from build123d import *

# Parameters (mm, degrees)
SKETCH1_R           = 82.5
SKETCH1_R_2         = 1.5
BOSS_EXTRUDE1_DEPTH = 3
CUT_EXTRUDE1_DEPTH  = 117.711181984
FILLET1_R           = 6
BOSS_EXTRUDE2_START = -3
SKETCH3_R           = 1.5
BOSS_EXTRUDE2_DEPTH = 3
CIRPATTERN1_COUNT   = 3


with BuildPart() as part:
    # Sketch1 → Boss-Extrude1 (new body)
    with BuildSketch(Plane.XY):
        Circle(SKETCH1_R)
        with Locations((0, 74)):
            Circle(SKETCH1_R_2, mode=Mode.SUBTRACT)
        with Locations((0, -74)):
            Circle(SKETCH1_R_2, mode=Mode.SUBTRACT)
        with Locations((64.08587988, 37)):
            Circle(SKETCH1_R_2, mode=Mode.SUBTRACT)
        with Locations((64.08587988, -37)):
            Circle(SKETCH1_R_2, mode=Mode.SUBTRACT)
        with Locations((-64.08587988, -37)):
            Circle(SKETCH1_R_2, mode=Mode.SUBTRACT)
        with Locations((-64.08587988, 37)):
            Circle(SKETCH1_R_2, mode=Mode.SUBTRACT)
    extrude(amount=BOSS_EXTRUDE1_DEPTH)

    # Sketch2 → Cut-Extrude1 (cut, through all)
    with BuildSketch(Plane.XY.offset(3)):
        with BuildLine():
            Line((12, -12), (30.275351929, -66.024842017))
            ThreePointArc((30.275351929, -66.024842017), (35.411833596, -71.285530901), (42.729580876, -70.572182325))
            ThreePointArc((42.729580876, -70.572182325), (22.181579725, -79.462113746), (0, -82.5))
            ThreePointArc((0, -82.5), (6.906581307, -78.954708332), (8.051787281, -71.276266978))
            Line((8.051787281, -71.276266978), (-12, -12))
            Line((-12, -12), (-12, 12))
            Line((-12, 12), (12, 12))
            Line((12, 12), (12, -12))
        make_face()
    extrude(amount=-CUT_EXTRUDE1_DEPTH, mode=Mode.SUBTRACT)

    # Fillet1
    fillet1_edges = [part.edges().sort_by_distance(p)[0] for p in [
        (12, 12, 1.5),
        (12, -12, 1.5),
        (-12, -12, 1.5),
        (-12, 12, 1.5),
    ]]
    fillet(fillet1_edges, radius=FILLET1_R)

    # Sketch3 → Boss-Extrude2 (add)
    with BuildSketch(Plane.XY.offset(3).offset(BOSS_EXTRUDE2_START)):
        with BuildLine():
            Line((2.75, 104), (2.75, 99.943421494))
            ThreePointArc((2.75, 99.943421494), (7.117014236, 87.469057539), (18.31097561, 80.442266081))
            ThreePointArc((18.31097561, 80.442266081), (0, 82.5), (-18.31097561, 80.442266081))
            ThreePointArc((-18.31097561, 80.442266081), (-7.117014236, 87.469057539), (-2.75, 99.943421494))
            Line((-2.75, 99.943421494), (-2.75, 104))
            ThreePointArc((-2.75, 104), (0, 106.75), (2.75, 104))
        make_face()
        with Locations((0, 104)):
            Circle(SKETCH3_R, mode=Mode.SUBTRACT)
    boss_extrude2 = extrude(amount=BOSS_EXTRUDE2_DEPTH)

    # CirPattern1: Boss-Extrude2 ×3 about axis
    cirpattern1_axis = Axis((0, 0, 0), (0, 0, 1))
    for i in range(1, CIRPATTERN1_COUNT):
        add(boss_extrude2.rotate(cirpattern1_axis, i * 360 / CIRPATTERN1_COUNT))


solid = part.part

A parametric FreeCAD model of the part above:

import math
import FreeCAD as App
import Part
import Sketcher


def edges_at(feature, points):
    """Names of the edges that pass closest to the given points."""
    edges = feature.Shape.Edges
    near = lambda p: min(range(len(edges)), key=lambda i: edges[i].distToShape(Part.Vertex(*p))[0])
    return sorted({f"Edge{near(p) + 1}" for p in points})

doc = App.newDocument("Part")
params = doc.addObject("Spreadsheet::Sheet", "Params")
for row, (alias, value) in enumerate([
    ("sketch1_diameter", "165 mm"),
    ("sketch1_diameter2", "3 mm"),
    ("pad1_length", "3 mm"),
    ("sketch2_radius", "8.5 mm"),
    ("sketch2_radius2", "82.5 mm"),
    ("sketch2_width", "24 mm"),
    ("fillet_radius", "6 mm"),
    ("sketch3_diameter", "3 mm"),
    ("sketch3_radius", "20 mm"),
    ("sketch3_radius2", "82.5 mm"),
    ("sketch3_radius3", "2.75 mm"),
    ("pad2_length", "3 mm"),
], start=1):
    params.set(f"A{row}", alias)
    params.set(f"B{row}", "=" + value)
    params.setAlias(f"B{row}", alias)

body = doc.addObject("PartDesign::Body", "Body")

# Sketch on XY plane
sketch1 = body.newObject("Sketcher::SketchObject", "Sketch")
sketch1.AttachmentSupport = (doc.getObject("XY_Plane"), [""])
sketch1.MapMode = "FlatFace"
sketch1.addGeometry([
    Part.Circle(App.Vector(0, 0, 0), App.Vector(0, 0, 1), 82.5),  # 0
    Part.Circle(App.Vector(-64.08588, -37, 0), App.Vector(0, 0, 1), 1.5),  # 1
    Part.Circle(App.Vector(0, -74, 0), App.Vector(0, 0, 1), 1.5),  # 2
    Part.Circle(App.Vector(64.08588, -37, 0), App.Vector(0, 0, 1), 1.5),  # 3
    Part.Circle(App.Vector(-64.08588, 37, 0), App.Vector(0, 0, 1), 1.5),  # 4
    Part.Circle(App.Vector(64.08588, 37, 0), App.Vector(0, 0, 1), 1.5),  # 5
    Part.Circle(App.Vector(0, 74, 0), App.Vector(0, 0, 1), 1.5),  # 6
], False)
sketch1.addConstraint([
    Sketcher.Constraint("Coincident", 0, 3, -1, 1),
    Sketcher.Constraint("Equal", 1, 2),
    Sketcher.Constraint("Equal", 2, 3),
    Sketcher.Constraint("Equal", 3, 4),
    Sketcher.Constraint("Equal", 4, 5),
    Sketcher.Constraint("Equal", 5, 6),
    Sketcher.Constraint("Symmetric", 3, 3, 4, 3, -1, 1),
    Sketcher.Constraint("Symmetric", 1, 3, 5, 3, -1, 1),
    Sketcher.Constraint("Symmetric", 2, 3, 6, 3, -1, 1),
    Sketcher.Constraint("Symmetric", 1, 3, 3, 3, -2),
    Sketcher.Constraint("PointOnObject", 2, 3, -2),
    Sketcher.Constraint("Diameter", 0, 165.0),
    Sketcher.Constraint("Diameter", 1, 3.0),
    Sketcher.Constraint("DistanceY", 1, 3, -1, 1, 37.0),
    Sketcher.Constraint("DistanceY", 2, 3, -1, 1, 74.0),
    Sketcher.Constraint("DistanceX", 1, 3, -1, 1, 64.08588),
])
sketch1.setExpression("Constraints[11]", "Params.sketch1_diameter")
sketch1.setExpression("Constraints[12]", "Params.sketch1_diameter2")
pad1 = body.newObject("PartDesign::Pad", "Pad")
pad1.Profile = sketch1
pad1.setExpression("Length", "Params.pad1_length")

# Sketch on XY plane
sketch2 = body.newObject("Sketcher::SketchObject", "Sketch001")
sketch2.AttachmentSupport = (doc.getObject("XY_Plane"), [""])
sketch2.MapMode = "FlatFace"
sketch2.AttachmentOffset = App.Placement(App.Vector(0, 0, 3), App.Rotation())
sketch2.addGeometry([
    Part.LineSegment(App.Vector(30.275352, -66.024842, 0), App.Vector(12, -12, 0)),  # 0
    Part.LineSegment(App.Vector(12, -12, 0), App.Vector(12, 12, 0)),  # 1
    Part.LineSegment(App.Vector(12, 12, 0), App.Vector(-12, 12, 0)),  # 2
    Part.LineSegment(App.Vector(-12, 12, 0), App.Vector(-12, -12, 0)),  # 3
    Part.LineSegment(App.Vector(-12, -12, 0), App.Vector(8.051787, -71.276267, 0)),  # 4
    Part.ArcOfCircle(Part.Circle(App.Vector(0, -74, 0), App.Vector(0, 0, 1), 8.5), math.radians(-90), math.radians(18.689487)),  # 5
    Part.ArcOfCircle(Part.Circle(App.Vector(0, 0, 0), App.Vector(0, 0, 1), 82.5), math.radians(-90), math.radians(-58.806209)),  # 6
    Part.ArcOfCircle(Part.Circle(App.Vector(38.327139, -63.301109, 0), App.Vector(0, 0, 1), 8.5), math.radians(-161.310513), math.radians(-58.806209)),  # 7
], False)
sketch2.addConstraint([
    Sketcher.Constraint("Coincident", 0, 2, 1, 1),
    Sketcher.Constraint("Coincident", 1, 2, 2, 1),
    Sketcher.Constraint("Coincident", 2, 2, 3, 1),
    Sketcher.Constraint("Coincident", 3, 2, 4, 1),
    Sketcher.Constraint("Tangent", 4, 2, 5, 2),
    Sketcher.Constraint("Tangent", 5, 1, 6, 1),
    Sketcher.Constraint("Tangent", 6, 2, 7, 2),
    Sketcher.Constraint("Tangent", 7, 1, 0, 1),
    Sketcher.Constraint("Vertical", 1),
    Sketcher.Constraint("Horizontal", 2),
    Sketcher.Constraint("Vertical", 3),
    Sketcher.Constraint("Coincident", 6, 3, -1, 1),
    Sketcher.Constraint("Equal", 5, 7),
    Sketcher.Constraint("Symmetric", 0, 2, 2, 2, -1, 1),
    Sketcher.Constraint("PointOnObject", 5, 3, -2),
    Sketcher.Constraint("Parallel", 0, 4),
    Sketcher.Constraint("Horizontal", 0, 2, 3, 2),
    Sketcher.Constraint("Equal", 2, 1),
    Sketcher.Constraint("Radius", 5, 8.5),
    Sketcher.Constraint("Radius", 6, 82.5),
    Sketcher.Constraint("DistanceX", 2, 2, 2, 1, 24.0),
])
sketch2.setExpression("Constraints[18]", "Params.sketch2_radius")
sketch2.setExpression("Constraints[19]", "Params.sketch2_radius2")
sketch2.setExpression("Constraints[20]", "Params.sketch2_width")
pocket1 = body.newObject("PartDesign::Pocket", "Pocket")
pocket1.Profile = sketch2
pocket1.Type = "ThroughAll"
doc.recompute()

fillet = body.newObject("PartDesign::Fillet", "Fillet")
fillet.Base = (pocket1, edges_at(pocket1, [
    (12, 12, 1.5),
    (12, -12, 1.5),
    (-12, -12, 1.5),
    (-12, 12, 1.5),
]))
fillet.setExpression("Radius", "Params.fillet_radius")

# Sketch on XY plane
sketch3 = body.newObject("Sketcher::SketchObject", "Sketch002")
sketch3.AttachmentSupport = (doc.getObject("XY_Plane"), [""])
sketch3.MapMode = "FlatFace"
sketch3.addGeometry([
    Part.LineSegment(App.Vector(2.75, 99.943421, 0), App.Vector(2.75, 104, 0)),  # 0
    Part.ArcOfCircle(Part.Circle(App.Vector(0, 104, 0), App.Vector(0, 0, 1), 2.75), math.radians(0), math.radians(180)),  # 1
    Part.LineSegment(App.Vector(-2.75, 104, 0), App.Vector(-2.75, 99.943421, 0)),  # 2
    Part.ArcOfCircle(Part.Circle(App.Vector(-22.75, 99.943421, 0), App.Vector(0, 0, 1), 20), math.radians(-77.176337), math.radians(0)),  # 3
    Part.ArcOfCircle(Part.Circle(App.Vector(0, 0, 0), App.Vector(0, 0, 1), 82.5), math.radians(77.176337), math.radians(102.823663)),  # 4
    Part.ArcOfCircle(Part.Circle(App.Vector(22.75, 99.943421, 0), App.Vector(0, 0, 1), 20), math.radians(-180), math.radians(-102.823663)),  # 5
    Part.Circle(App.Vector(0, 104, 0), App.Vector(0, 0, 1), 1.5),  # 6
], False)
sketch3.addConstraint([
    Sketcher.Constraint("Tangent", 0, 2, 1, 1),
    Sketcher.Constraint("Tangent", 1, 2, 2, 1),
    Sketcher.Constraint("Tangent", 2, 2, 3, 2),
    Sketcher.Constraint("Tangent", 3, 1, 4, 2),
    Sketcher.Constraint("Tangent", 4, 1, 5, 2),
    Sketcher.Constraint("Tangent", 5, 1, 0, 1),
    Sketcher.Constraint("Vertical", 0),
    Sketcher.Constraint("Vertical", 2),
    Sketcher.Constraint("Coincident", 4, 3, -1, 1),
    Sketcher.Constraint("Coincident", 6, 3, 1, 3),
    Sketcher.Constraint("Equal", 3, 5),
    Sketcher.Constraint("PointOnObject", 1, 3, -2),
    Sketcher.Constraint("Diameter", 6, 3.0),
    Sketcher.Constraint("Radius", 3, 20.0),
    Sketcher.Constraint("Radius", 4, 82.5),
    Sketcher.Constraint("Radius", 1, 2.75),
    Sketcher.Constraint("DistanceY", -1, 1, 1, 3, 104.0),
])
sketch3.setExpression("Constraints[12]", "Params.sketch3_diameter")
sketch3.setExpression("Constraints[13]", "Params.sketch3_radius")
sketch3.setExpression("Constraints[14]", "Params.sketch3_radius2")
sketch3.setExpression("Constraints[15]", "Params.sketch3_radius3")
pad2 = body.newObject("PartDesign::Pad", "Pad001")
pad2.Profile = sketch3
pad2.setExpression("Length", "Params.pad2_length")
doc.recompute()

polarpattern = body.newObject("PartDesign::PolarPattern", "PolarPattern")
polarpattern.Originals = [pad2]
polarpattern.Axis = (doc.getObject("Z_Axis"), [""])
polarpattern.Angle = 360
polarpattern.Occurrences = 3
body.Tip = polarpattern

doc.recompute()
